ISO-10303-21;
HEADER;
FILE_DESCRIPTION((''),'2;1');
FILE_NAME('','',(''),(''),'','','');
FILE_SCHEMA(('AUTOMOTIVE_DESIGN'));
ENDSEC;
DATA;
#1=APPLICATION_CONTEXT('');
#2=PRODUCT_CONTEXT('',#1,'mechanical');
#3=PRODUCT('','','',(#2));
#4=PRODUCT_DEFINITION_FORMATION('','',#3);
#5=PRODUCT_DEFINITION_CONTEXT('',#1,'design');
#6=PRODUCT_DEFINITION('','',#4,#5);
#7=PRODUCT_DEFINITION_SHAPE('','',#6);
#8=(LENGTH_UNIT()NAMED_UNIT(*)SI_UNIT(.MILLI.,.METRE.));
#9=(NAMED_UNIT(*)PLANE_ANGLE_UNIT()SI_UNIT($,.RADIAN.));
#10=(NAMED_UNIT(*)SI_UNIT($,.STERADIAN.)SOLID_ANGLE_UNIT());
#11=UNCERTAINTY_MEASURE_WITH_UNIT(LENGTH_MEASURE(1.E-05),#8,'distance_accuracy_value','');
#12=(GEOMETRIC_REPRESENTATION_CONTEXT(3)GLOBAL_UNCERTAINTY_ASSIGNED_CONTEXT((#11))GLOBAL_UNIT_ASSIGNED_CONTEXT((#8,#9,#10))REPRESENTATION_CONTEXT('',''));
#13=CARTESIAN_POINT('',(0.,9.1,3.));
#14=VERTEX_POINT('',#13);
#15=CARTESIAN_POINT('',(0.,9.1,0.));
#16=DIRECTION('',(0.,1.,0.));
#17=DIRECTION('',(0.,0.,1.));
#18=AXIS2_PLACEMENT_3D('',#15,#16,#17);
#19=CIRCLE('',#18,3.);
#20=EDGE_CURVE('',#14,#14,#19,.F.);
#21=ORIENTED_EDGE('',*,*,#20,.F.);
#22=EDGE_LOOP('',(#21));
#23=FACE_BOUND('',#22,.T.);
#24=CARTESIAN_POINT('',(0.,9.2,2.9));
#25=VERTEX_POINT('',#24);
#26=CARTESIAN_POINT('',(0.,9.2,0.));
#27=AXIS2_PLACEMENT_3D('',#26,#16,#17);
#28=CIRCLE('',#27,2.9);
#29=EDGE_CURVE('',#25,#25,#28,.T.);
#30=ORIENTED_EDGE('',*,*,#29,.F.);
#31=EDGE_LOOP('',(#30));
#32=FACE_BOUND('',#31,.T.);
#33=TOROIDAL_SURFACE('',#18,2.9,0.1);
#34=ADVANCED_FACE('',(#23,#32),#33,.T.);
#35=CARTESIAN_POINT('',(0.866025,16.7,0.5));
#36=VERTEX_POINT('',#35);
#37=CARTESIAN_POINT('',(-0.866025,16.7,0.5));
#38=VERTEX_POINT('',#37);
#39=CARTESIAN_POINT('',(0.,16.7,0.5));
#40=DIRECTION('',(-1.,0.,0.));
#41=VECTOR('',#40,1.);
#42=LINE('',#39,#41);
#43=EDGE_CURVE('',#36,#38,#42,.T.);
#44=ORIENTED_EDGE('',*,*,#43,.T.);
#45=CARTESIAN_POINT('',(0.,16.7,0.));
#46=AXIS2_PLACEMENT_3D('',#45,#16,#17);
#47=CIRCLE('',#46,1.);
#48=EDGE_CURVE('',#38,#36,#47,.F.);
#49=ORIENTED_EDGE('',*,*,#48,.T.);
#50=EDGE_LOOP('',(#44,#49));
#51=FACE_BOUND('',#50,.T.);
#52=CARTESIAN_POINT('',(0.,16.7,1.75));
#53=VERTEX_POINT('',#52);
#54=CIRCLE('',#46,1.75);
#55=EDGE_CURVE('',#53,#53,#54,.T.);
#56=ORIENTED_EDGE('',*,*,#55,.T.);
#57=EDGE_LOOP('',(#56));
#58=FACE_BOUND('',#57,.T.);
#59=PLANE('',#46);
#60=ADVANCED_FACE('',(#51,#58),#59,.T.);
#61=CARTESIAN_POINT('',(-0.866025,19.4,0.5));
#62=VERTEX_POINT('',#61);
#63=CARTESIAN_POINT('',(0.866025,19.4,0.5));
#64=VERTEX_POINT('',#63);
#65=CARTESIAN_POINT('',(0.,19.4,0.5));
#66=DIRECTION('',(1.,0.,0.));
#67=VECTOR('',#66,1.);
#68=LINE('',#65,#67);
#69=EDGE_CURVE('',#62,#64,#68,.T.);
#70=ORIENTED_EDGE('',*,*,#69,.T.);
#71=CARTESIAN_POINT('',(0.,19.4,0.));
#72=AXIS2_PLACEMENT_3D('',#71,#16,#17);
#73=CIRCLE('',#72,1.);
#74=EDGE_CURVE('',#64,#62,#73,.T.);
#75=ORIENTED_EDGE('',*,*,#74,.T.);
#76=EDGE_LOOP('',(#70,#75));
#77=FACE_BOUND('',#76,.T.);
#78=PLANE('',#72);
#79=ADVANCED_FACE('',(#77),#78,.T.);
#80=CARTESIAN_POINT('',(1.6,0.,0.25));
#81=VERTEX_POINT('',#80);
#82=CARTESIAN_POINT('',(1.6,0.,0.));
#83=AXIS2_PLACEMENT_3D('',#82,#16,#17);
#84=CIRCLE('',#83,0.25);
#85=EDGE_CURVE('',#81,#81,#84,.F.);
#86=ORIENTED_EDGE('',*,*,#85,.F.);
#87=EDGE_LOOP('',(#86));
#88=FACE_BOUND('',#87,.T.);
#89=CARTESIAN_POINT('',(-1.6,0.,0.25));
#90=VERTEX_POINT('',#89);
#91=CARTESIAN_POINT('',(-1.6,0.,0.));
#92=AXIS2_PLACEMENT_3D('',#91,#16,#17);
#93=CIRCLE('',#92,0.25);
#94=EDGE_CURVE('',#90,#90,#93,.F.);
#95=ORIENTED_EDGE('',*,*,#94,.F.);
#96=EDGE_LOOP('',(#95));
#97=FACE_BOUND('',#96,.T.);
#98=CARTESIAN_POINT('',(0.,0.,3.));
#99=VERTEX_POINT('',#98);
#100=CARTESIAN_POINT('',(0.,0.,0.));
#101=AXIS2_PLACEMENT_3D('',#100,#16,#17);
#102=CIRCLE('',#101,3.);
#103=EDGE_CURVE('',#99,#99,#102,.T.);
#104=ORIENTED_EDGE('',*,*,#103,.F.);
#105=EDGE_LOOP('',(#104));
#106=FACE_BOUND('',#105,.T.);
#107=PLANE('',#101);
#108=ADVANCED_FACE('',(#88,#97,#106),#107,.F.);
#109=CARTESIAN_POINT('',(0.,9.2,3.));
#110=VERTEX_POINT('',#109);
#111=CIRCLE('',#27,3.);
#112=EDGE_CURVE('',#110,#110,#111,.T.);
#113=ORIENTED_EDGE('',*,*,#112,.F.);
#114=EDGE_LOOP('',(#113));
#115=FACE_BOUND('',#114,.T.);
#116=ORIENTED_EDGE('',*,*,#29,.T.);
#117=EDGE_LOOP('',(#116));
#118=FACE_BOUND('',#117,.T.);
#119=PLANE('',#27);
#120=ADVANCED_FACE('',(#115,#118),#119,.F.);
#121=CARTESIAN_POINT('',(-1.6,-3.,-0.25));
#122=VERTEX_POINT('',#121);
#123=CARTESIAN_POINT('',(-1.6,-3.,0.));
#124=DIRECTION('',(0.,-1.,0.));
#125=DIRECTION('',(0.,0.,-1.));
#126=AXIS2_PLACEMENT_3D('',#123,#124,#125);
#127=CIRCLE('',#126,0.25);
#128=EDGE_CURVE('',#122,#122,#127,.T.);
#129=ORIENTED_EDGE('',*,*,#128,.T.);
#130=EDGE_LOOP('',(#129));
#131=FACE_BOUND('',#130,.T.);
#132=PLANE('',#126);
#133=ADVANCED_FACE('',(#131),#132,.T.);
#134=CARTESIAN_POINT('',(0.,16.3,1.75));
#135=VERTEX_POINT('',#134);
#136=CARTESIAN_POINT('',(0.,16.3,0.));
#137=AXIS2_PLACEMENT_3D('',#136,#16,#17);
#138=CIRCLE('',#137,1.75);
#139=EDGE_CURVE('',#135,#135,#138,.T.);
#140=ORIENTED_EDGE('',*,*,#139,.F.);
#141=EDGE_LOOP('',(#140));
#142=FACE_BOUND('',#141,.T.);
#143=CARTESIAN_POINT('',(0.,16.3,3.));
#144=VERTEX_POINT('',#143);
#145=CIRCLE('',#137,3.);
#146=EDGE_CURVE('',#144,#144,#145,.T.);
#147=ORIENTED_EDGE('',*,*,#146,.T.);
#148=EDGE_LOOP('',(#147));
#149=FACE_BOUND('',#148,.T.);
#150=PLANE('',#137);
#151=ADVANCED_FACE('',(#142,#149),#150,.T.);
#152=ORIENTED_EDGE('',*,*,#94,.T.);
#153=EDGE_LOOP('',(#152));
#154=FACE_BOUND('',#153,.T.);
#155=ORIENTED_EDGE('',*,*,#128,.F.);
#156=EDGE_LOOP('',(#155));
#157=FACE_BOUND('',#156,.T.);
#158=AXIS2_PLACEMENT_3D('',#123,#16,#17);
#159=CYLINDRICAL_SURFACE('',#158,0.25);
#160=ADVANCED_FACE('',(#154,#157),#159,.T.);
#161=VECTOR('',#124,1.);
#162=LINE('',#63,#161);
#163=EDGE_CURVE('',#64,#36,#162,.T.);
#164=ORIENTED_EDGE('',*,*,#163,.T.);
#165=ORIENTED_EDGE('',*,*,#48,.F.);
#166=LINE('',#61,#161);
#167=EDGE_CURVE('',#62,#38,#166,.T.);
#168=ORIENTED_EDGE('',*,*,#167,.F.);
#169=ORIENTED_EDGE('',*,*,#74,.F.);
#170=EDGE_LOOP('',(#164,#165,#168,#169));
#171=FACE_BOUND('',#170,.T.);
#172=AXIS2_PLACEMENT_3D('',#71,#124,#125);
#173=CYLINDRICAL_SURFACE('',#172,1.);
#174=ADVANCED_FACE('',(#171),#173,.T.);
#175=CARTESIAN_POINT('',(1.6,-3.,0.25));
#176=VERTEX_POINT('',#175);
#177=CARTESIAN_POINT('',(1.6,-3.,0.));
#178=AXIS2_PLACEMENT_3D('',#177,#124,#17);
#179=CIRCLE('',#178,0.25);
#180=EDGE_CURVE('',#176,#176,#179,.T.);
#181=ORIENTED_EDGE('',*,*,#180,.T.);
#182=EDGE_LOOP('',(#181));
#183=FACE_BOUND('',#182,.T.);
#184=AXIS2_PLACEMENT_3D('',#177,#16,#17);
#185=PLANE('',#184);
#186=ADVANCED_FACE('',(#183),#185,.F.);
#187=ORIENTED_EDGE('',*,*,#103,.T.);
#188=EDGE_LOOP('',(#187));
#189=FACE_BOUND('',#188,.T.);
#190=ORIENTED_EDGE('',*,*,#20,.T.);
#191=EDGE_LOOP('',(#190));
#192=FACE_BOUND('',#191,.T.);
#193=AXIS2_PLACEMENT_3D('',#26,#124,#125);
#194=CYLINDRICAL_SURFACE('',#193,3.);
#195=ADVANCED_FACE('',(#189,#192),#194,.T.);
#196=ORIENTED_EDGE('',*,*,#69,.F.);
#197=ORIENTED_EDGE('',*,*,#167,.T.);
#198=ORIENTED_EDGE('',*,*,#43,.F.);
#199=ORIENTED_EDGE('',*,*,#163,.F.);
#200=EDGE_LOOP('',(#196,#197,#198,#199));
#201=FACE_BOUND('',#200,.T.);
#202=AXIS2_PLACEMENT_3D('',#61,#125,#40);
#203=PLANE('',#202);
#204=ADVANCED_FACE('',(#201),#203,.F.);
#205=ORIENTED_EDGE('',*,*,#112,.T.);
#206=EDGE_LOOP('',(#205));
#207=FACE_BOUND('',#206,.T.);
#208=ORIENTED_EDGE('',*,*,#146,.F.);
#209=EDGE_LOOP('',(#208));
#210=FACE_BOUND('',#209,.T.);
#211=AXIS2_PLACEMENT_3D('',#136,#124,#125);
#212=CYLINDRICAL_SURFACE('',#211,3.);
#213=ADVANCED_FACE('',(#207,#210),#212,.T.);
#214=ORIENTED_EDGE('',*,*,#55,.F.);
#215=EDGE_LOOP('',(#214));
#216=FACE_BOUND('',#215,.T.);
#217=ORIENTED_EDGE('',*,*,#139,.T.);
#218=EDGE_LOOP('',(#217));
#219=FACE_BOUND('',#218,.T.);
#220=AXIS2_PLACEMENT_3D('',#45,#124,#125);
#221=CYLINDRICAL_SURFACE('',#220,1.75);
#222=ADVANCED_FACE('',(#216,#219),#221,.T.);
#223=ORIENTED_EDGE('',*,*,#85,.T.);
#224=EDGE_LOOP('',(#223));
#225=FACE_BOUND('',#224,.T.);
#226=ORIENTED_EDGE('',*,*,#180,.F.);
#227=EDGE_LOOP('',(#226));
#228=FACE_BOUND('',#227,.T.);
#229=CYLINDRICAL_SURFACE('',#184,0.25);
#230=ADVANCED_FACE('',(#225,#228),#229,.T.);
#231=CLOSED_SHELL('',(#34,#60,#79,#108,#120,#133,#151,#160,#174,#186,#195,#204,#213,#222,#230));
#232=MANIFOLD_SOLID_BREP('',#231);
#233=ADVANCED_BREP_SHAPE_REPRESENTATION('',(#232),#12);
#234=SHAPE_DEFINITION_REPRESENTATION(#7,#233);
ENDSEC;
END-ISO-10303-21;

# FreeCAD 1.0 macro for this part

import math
import FreeCAD as App
import Part
import Sketcher


def edges_at(feature, points):
    """Names of the edges that pass closest to the given points."""
    edges = feature.Shape.Edges
    near = lambda p: min(range(len(edges)), key=lambda i: edges[i].distToShape(Part.Vertex(*p))[0])
    return sorted({f"Edge{near(p) + 1}" for p in points})

doc = App.newDocument("Part")
params = doc.addObject("Spreadsheet::Sheet", "Params")
for row, (alias, value) in enumerate([
    ("sketch1_diameter", "6 mm"),
    ("pad1_length", "9.2 mm"),
    ("fillet_radius", "0.1 mm"),
    ("sketch2_diameter", "6 mm"),
    ("pad2_length", "7.1 mm"),
    ("sketch3_diameter", "3.5 mm"),
    ("pad3_length", "0.4 mm"),
    ("sketch4_radius", "1 mm"),
    ("pad4_length", "3.1 mm"),
    ("sketch5_diameter", "0.5 mm"),
    ("pad5_length", "3 mm"),
], start=1):
    params.set(f"A{row}", alias)
    params.set(f"B{row}", "=" + value)
    params.setAlias(f"B{row}", alias)

body = doc.addObject("PartDesign::Body", "Body")

sketch1 = doc.addObject("Sketcher::SketchObject", "Sketch")
body.addObject(sketch1)
sketch1.AttachmentSupport = (doc.XZ_Plane, [""])
sketch1.MapMode = "FlatFace"
sketch1.addGeometry(Part.Circle(App.Vector(0, 0, 0), App.Vector(0, 0, 1), 3), False)
sketch1.addConstraint(Sketcher.Constraint("Coincident", 0, 3, -1, 1))
sketch1.addConstraint(Sketcher.Constraint("Diameter", 0, 6.0))
sketch1.setExpression("Constraints[1]", "Params.sketch1_diameter")
pad1 = doc.addObject("PartDesign::Pad", "Pad")
body.addObject(pad1)
pad1.Profile = sketch1
pad1.setExpression("Length", "Params.pad1_length")
pad1.Reversed = True
doc.recompute()

fillet = doc.addObject("PartDesign::Fillet", "Fillet")
body.addObject(fillet)
fillet.Base = (pad1, edges_at(pad1, [(0, 9.2, -3)]))
fillet.setExpression("Radius", "Params.fillet_radius")

sketch2 = doc.addObject("Sketcher::SketchObject", "Sketch001")
body.addObject(sketch2)
sketch2.AttachmentSupport = (doc.XZ_Plane, [""])
sketch2.MapMode = "FlatFace"
sketch2.AttachmentOffset = App.Placement(App.Vector(0, 0, -9.2), App.Rotation())
sketch2.addGeometry(Part.Circle(App.Vector(0, 0, 0), App.Vector(0, 0, 1), 3), False)
sketch2.addConstraint(Sketcher.Constraint("Coincident", 0, 3, -1, 1))
sketch2.addConstraint(Sketcher.Constraint("Diameter", 0, 6.0))
sketch2.setExpression("Constraints[1]", "Params.sketch2_diameter")
pad2 = doc.addObject("PartDesign::Pad", "Pad001")
body.addObject(pad2)
pad2.Profile = sketch2
pad2.setExpression("Length", "Params.pad2_length")
pad2.Reversed = True

sketch3 = doc.addObject("Sketcher::SketchObject", "Sketch002")
body.addObject(sketch3)
sketch3.AttachmentSupport = (doc.XZ_Plane, [""])
sketch3.MapMode = "FlatFace"
sketch3.AttachmentOffset = App.Placement(App.Vector(0, 0, -16.3), App.Rotation())
sketch3.addGeometry(Part.Circle(App.Vector(0, 0, 0), App.Vector(0, 0, 1), 1.8), False)
sketch3.addConstraint(Sketcher.Constraint("Coincident", 0, 3, -1, 1))
sketch3.addConstraint(Sketcher.Constraint("Diameter", 0, 3.5))
sketch3.setExpression("Constraints[1]", "Params.sketch3_diameter")
pad3 = doc.addObject("PartDesign::Pad", "Pad002")
body.addObject(pad3)
pad3.Profile = sketch3
pad3.setExpression("Length", "Params.pad3_length")
pad3.Reversed = True

sketch4 = doc.addObject("Sketcher::SketchObject", "Sketch003")
body.addObject(sketch4)
sketch4.AttachmentSupport = (doc.XZ_Plane, [""])
sketch4.MapMode = "FlatFace"
sketch4.AttachmentOffset = App.Placement(App.Vector(0, 0, -16.3), App.Rotation())
sketch4.addGeometry(Part.LineSegment(App.Vector(-0.9, 0.5, 0), App.Vector(0.9, 0.5, 0)), False)
sketch4.addGeometry(Part.ArcOfCircle(Part.Circle(App.Vector(0, 0, 0), App.Vector(0, 0, 1), 1), math.radians(150), math.radians(390)), False)
sketch4.addConstraint(Sketcher.Constraint("Coincident", 0, 1, 1, 1))
sketch4.addConstraint(Sketcher.Constraint("Coincident", 1, 2, 0, 2))
sketch4.addConstraint(Sketcher.Constraint("Horizontal", 0))
sketch4.addConstraint(Sketcher.Constraint("Coincident", 1, 3, -1, 1))
sketch4.addConstraint(Sketcher.Constraint("Radius", 1, 1.0))
sketch4.addConstraint(Sketcher.Constraint("DistanceY", -1, 1, 0, 1, 0.5))
sketch4.setExpression("Constraints[4]", "Params.sketch4_radius")
pad4 = doc.addObject("PartDesign::Pad", "Pad003")
body.addObject(pad4)
pad4.Profile = sketch4
pad4.setExpression("Length", "Params.pad4_length")
pad4.Reversed = True

sketch5 = doc.addObject("Sketcher::SketchObject", "Sketch004")
body.addObject(sketch5)
sketch5.AttachmentSupport = (doc.XZ_Plane, [""])
sketch5.MapMode = "FlatFace"
sketch5.addGeometry(Part.Circle(App.Vector(-1.6, 0, 0), App.Vector(0, 0, 1), 0.25), False)
sketch5.addGeometry(Part.Circle(App.Vector(1.6, 0, 0), App.Vector(0, 0, 1), 0.25), False)
sketch5.addConstraint(Sketcher.Constraint("Equal", 0, 1))
sketch5.addConstraint(Sketcher.Constraint("Symmetric", 0, 3, 1, 3, -1, 1))
sketch5.addConstraint(Sketcher.Constraint("PointOnObject", 0, 3, -1))
sketch5.addConstraint(Sketcher.Constraint("Diameter", 0, 0.5))
sketch5.addConstraint(Sketcher.Constraint("DistanceX", 0, 3, -1, 1, 1.6))
sketch5.setExpression("Constraints[3]", "Params.sketch5_diameter")
pad5 = doc.addObject("PartDesign::Pad", "Pad004")
body.addObject(pad5)
pad5.Profile = sketch5
pad5.setExpression("Length", "Params.pad5_length")

doc.recompute()
